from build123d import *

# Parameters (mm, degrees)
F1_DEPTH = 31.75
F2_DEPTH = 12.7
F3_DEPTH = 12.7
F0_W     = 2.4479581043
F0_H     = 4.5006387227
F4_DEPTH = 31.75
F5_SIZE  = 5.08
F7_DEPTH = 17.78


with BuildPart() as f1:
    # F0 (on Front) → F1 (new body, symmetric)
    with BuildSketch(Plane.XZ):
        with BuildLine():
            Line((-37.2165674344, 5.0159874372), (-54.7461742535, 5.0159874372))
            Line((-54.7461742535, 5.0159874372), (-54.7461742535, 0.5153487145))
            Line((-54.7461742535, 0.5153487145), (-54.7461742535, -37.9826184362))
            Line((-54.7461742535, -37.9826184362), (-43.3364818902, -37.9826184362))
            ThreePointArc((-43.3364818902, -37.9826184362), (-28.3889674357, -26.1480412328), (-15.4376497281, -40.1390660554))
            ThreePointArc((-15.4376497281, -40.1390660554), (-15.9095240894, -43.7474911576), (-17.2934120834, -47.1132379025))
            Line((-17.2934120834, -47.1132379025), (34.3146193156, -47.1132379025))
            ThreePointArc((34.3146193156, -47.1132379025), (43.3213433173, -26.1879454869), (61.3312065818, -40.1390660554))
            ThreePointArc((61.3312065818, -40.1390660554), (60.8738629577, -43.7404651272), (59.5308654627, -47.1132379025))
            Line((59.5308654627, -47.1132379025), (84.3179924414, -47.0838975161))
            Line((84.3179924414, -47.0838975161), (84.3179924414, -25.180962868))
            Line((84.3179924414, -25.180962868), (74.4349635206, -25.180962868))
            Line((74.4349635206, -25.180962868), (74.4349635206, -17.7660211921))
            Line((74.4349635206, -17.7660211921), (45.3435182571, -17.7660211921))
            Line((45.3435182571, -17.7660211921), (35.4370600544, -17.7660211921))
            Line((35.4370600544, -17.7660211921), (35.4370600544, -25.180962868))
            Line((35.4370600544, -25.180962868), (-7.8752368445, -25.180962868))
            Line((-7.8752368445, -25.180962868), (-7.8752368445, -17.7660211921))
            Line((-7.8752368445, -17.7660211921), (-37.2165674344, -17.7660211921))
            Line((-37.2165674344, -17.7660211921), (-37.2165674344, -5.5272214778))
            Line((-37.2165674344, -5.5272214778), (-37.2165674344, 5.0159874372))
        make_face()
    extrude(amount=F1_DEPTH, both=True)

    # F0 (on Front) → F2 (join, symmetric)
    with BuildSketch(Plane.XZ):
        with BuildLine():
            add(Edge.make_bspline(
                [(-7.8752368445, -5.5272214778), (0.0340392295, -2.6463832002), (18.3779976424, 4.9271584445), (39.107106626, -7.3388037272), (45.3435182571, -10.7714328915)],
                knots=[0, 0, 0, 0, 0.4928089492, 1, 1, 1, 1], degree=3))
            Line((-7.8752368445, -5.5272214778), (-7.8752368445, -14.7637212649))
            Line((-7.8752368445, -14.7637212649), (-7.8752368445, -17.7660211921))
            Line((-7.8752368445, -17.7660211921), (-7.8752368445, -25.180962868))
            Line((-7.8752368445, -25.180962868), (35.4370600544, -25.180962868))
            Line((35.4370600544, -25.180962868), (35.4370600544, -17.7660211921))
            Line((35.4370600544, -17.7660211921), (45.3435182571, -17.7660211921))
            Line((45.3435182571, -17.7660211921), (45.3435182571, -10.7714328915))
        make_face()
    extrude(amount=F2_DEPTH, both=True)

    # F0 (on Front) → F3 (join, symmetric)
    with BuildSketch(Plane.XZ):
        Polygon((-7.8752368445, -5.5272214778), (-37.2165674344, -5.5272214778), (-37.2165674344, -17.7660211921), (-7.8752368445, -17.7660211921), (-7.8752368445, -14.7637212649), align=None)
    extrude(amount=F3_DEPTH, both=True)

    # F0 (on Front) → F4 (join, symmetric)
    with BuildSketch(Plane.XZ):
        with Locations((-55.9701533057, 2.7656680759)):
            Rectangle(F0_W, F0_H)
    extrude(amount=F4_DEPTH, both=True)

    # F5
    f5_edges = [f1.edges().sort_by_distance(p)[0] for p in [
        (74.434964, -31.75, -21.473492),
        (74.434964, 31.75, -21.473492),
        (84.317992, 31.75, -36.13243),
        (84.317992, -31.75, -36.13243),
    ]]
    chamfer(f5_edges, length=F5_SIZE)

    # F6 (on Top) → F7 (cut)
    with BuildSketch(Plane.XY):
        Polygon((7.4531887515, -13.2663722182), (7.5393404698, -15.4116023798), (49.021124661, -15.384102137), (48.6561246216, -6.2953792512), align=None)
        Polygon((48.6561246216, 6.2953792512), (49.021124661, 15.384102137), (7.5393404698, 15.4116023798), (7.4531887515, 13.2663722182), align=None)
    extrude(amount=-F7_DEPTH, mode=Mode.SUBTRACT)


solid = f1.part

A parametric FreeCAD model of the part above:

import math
import FreeCAD as App
import Part
import Sketcher
Q = App.Units.Quantity


def edges_at(feature, points):
    """Names of the edges that pass closest to the given points."""
    edges = feature.Shape.Edges
    near = lambda p: min(range(len(edges)), key=lambda i: edges[i].distToShape(Part.Vertex(*p))[0])
    return sorted({f"Edge{near(p) + 1}" for p in points})


def add_polygon(sketch, points):
    """Adds a closed chain of lines whose ends are joined by coincident constraints."""
    first, n = sketch.GeometryCount, len(points)
    for a, b in zip(points, points[1:] + points[:1]):
        sketch.addGeometry(Part.LineSegment(App.Vector(*a, 0), App.Vector(*b, 0)), False)
    for i in range(n):
        sketch.addConstraint(Sketcher.Constraint("Coincident", first + i, 2, first + (i + 1) % n, 1))

doc = App.newDocument("Part")
params = doc.addObject("Spreadsheet::Sheet", "Params")
for row, (alias, value) in enumerate([
    ("pad1_length", "2.5 in"),
    ("pad2_length", "1 in"),
    ("pad3_length", "1 in"),
    ("pad4_length", "2.5 in"),
    ("chamfer_size", "0.2 in"),
    ("pocket1_length", "0.7 in"),
], start=1):
    params.set(f"A{row}", alias)
    params.set(f"B{row}", "=" + value)
    params.setAlias(f"B{row}", alias)

body = doc.addObject("PartDesign::Body", "Body")

sketch1 = body.newObject("Sketcher::SketchObject", "Sketch")
sketch1.AttachmentSupport = (doc.getObject("XZ_Plane"), [""])
sketch1.MapMode = "FlatFace"
sketch1.addGeometry(Part.LineSegment(App.Vector(-37, 5, 0), App.Vector(-55, 5, 0)), False)
sketch1.addGeometry(Part.LineSegment(App.Vector(-55, 5, 0), App.Vector(-55, -38, 0)), False)
sketch1.addGeometry(Part.LineSegment(App.Vector(-55, -38, 0), App.Vector(-43, -38, 0)), False)
sketch1.addGeometry(Part.ArcOfCircle(Part.Circle(App.Vector(-29, -40, 0), App.Vector(0, 0, 1), 14), math.radians(0), math.radians(171)), False)
sketch1.addGeometry(Part.ArcOfCircle(Part.Circle(App.Vector(-29, -40, 0), App.Vector(0, 0, 1), 14), math.radians(-30), math.radians(0)), False)
sketch1.addGeometry(Part.LineSegment(App.Vector(-17, -47, 0), App.Vector(34, -47, 0)), False)
sketch1.addGeometry(Part.ArcOfCircle(Part.Circle(App.Vector(47, -40, 0), App.Vector(0, 0, 1), 14), math.radians(0), math.radians(209)), False)
sketch1.addGeometry(Part.ArcOfCircle(Part.Circle(App.Vector(47, -40, 0), App.Vector(0, 0, 1), 14), math.radians(-29), math.radians(0)), False)
sketch1.addGeometry(Part.LineSegment(App.Vector(60, -47, 0), App.Vector(84, -47, 0)), False)
sketch1.addGeometry(Part.LineSegment(App.Vector(84, -47, 0), App.Vector(84, -25, 0)), False)
sketch1.addGeometry(Part.LineSegment(App.Vector(84, -25, 0), App.Vector(74, -25, 0)), False)
sketch1.addGeometry(Part.LineSegment(App.Vector(74, -25, 0), App.Vector(74, -18, 0)), False)
sketch1.addGeometry(Part.LineSegment(App.Vector(74, -18, 0), App.Vector(35, -18, 0)), False)
sketch1.addGeometry(Part.LineSegment(App.Vector(35, -18, 0), App.Vector(35, -25, 0)), False)
sketch1.addGeometry(Part.LineSegment(App.Vector(35, -25, 0), App.Vector(-8, -25, 0)), False)
sketch1.addGeometry(Part.LineSegment(App.Vector(-8, -25, 0), App.Vector(-8, -18, 0)), False)
sketch1.addGeometry(Part.LineSegment(App.Vector(-8, -18, 0), App.Vector(-37, -18, 0)), False)
sketch1.addGeometry(Part.LineSegment(App.Vector(-37, -18, 0), App.Vector(-37, 5, 0)), False)
sketch1.addConstraint(Sketcher.Constraint("Coincident", 0, 2, 1, 1))
sketch1.addConstraint(Sketcher.Constraint("Coincident", 1, 2, 2, 1))
sketch1.addConstraint(Sketcher.Constraint("Coincident", 2, 2, 3, 2))
sketch1.addConstraint(Sketcher.Constraint("Tangent", 3, 1, 4, 2))
sketch1.addConstraint(Sketcher.Constraint("Coincident", 4, 1, 5, 1))
sketch1.addConstraint(Sketcher.Constraint("Coincident", 5, 2, 6, 2))
sketch1.addConstraint(Sketcher.Constraint("Tangent", 6, 1, 7, 2))
sketch1.addConstraint(Sketcher.Constraint("Coincident", 7, 1, 8, 1))
sketch1.addConstraint(Sketcher.Constraint("Coincident", 8, 2, 9, 1))
sketch1.addConstraint(Sketcher.Constraint("Coincident", 9, 2, 10, 1))
sketch1.addConstraint(Sketcher.Constraint("Coincident", 10, 2, 11, 1))
sketch1.addConstraint(Sketcher.Constraint("Coincident", 11, 2, 12, 1))
sketch1.addConstraint(Sketcher.Constraint("Coincident", 12, 2, 13, 1))
sketch1.addConstraint(Sketcher.Constraint("Coincident", 13, 2, 14, 1))
sketch1.addConstraint(Sketcher.Constraint("Coincident", 14, 2, 15, 1))
sketch1.addConstraint(Sketcher.Constraint("Coincident", 15, 2, 16, 1))
sketch1.addConstraint(Sketcher.Constraint("Coincident", 16, 2, 17, 1))
sketch1.addConstraint(Sketcher.Constraint("Coincident", 17, 2, 0, 1))
sketch1.addConstraint(Sketcher.Constraint("Horizontal", 0))
sketch1.addConstraint(Sketcher.Constraint("Vertical", 1))
sketch1.addConstraint(Sketcher.Constraint("Horizontal", 2))
sketch1.addConstraint(Sketcher.Constraint("Horizontal", 5))
sketch1.addConstraint(Sketcher.Constraint("Vertical", 9))
sketch1.addConstraint(Sketcher.Constraint("Horizontal", 10))
sketch1.addConstraint(Sketcher.Constraint("Vertical", 11))
sketch1.addConstraint(Sketcher.Constraint("Horizontal", 12))
sketch1.addConstraint(Sketcher.Constraint("Vertical", 13))
sketch1.addConstraint(Sketcher.Constraint("Horizontal", 14))
sketch1.addConstraint(Sketcher.Constraint("Vertical", 15))
sketch1.addConstraint(Sketcher.Constraint("Horizontal", 16))
sketch1.addConstraint(Sketcher.Constraint("Vertical", 17))
sketch1.addConstraint(Sketcher.Constraint("Equal", 3, 4))
sketch1.addConstraint(Sketcher.Constraint("Equal", 6, 7))
sketch1.addConstraint(Sketcher.Constraint("Horizontal", 4, 3, 6, 3))
sketch1.addConstraint(Sketcher.Constraint("Horizontal", 7, 3, 3, 1))
sketch1.addConstraint(Sketcher.Constraint("Horizontal", 3, 1, 6, 1))
sketch1.addConstraint(Sketcher.Constraint("Horizontal", 5, 2, 7, 1))
sketch1.addConstraint(Sketcher.Constraint("Horizontal", 10, 2, 13, 2))
sketch1.addConstraint(Sketcher.Constraint("Horizontal", 12, 2, 15, 2))
sketch1.addConstraint(Sketcher.Constraint("Radius", 3, Q("14.032758 mm")))
sketch1.addConstraint(Sketcher.Constraint("Radius", 6, Q("14.408464 mm")))
sketch1.addConstraint(Sketcher.Constraint("DistanceX", 5, 1, 5, 2, Q("51.608031 mm")))
sketch1.addConstraint(Sketcher.Constraint("DistanceX", 10, 2, 10, 1, Q("9.883029 mm")))
sketch1.addConstraint(Sketcher.Constraint("DistanceX", 16, 2, 16, 1, Q("29.341331 mm")))
sketch1.addConstraint(Sketcher.Constraint("DistanceY", 11, 1, 11, 2, Q("7.414942 mm")))
sketch1.addConstraint(Sketcher.Constraint("DistanceY", 17, 1, 17, 2, Q("22.782009 mm")))
sketch1.addConstraint(Sketcher.Constraint("DistanceX", 7, 1, 10, 2, Q("14.904098 mm")))
sketch1.addConstraint(Sketcher.Constraint("DistanceX", 0, 2, 0, 1, Q("17.529607 mm")))
sketch1.addConstraint(Sketcher.Constraint("DistanceX", 2, 1, 2, 2, Q("11.409692 mm")))
sketch1.addConstraint(Sketcher.Constraint("DistanceX", 12, 2, 12, 1, Q("38.997903 mm")))
sketch1.addConstraint(Sketcher.Constraint("DistanceX", 14, 2, 14, 1, Q("43.312297 mm")))
sketch1.addConstraint(Sketcher.Constraint("DistanceY", 1, 2, 1, 1, Q("42.998606 mm")))
sketch1.addConstraint(Sketcher.Constraint("DistanceY", 9, 1, 9, 2, Q("21.902935 mm")))
sketch1.addConstraint(Sketcher.Constraint("DistanceY", 1, 2, -1, 1, Q("37.982618 mm")))
sketch1.addConstraint(Sketcher.Constraint("DistanceX", 2, 2, -1, 1, Q("43.336482 mm")))
sketch1.addConstraint(Sketcher.Constraint("DistanceX", 3, 1, -1, 1, Q("15.43765 mm")))
pad1 = body.newObject("PartDesign::Pad", "Pad")
pad1.Profile = sketch1
pad1.setExpression("Length", "Params.pad1_length")
pad1.Midplane = True

sketch2 = body.newObject("Sketcher::SketchObject", "Sketch001")
sketch2.AttachmentSupport = (doc.getObject("XZ_Plane"), [""])
sketch2.MapMode = "FlatFace"
sketch2.addGeometry(Part.BSplineCurve([App.Vector(-7.875237, -5.527221, 0), App.Vector(0.034039, -2.646383, 0), App.Vector(18.377998, 4.927158, 0), App.Vector(39.107107, -7.338804, 0), App.Vector(45.343518, -10.771433, 0)], [4, 1, 4], [0, 0.492808949, 1], False, 3, [1, 1, 1, 1, 1], False), False)
sketch2.addGeometry(Part.LineSegment(App.Vector(-7.875237, -5.527221, 0), App.Vector(-7.875237, -25.180963, 0)), False)
sketch2.addGeometry(Part.LineSegment(App.Vector(-7.875237, -25.180963, 0), App.Vector(35.43706, -25.180963, 0)), False)
sketch2.addGeometry(Part.LineSegment(App.Vector(35.43706, -25.180963, 0), App.Vector(35.43706, -17.766021, 0)), False)
sketch2.addGeometry(Part.LineSegment(App.Vector(35.43706, -17.766021, 0), App.Vector(45.343518, -17.766021, 0)), False)
sketch2.addGeometry(Part.LineSegment(App.Vector(45.343518, -17.766021, 0), App.Vector(45.343518, -10.771433, 0)), False)
sketch2.addConstraint(Sketcher.Constraint("Block", 0))
sketch2.addConstraint(Sketcher.Constraint("Coincident", 0, 1, 1, 1))
sketch2.addConstraint(Sketcher.Constraint("Coincident", 1, 2, 2, 1))
sketch2.addConstraint(Sketcher.Constraint("Coincident", 2, 2, 3, 1))
sketch2.addConstraint(Sketcher.Constraint("Coincident", 3, 2, 4, 1))
sketch2.addConstraint(Sketcher.Constraint("Coincident", 4, 2, 5, 1))
sketch2.addConstraint(Sketcher.Constraint("Coincident", 5, 2, 0, 2))
sketch2.addConstraint(Sketcher.Constraint("Vertical", 1))
sketch2.addConstraint(Sketcher.Constraint("Horizontal", 2))
sketch2.addConstraint(Sketcher.Constraint("Vertical", 3))
sketch2.addConstraint(Sketcher.Constraint("Horizontal", 4))
sketch2.addConstraint(Sketcher.Constraint("Vertical", 5))
sketch2.addConstraint(Sketcher.Constraint("DistanceX", 4, 1, 4, 2, Q("9.906458 mm")))
sketch2.addConstraint(Sketcher.Constraint("DistanceY", 1, 2, 1, 1, Q("19.653741 mm")))
sketch2.addConstraint(Sketcher.Constraint("DistanceY", 3, 1, 3, 2, Q("7.414942 mm")))
pad2 = body.newObject("PartDesign::Pad", "Pad001")
pad2.Profile = sketch2
pad2.setExpression("Length", "Params.pad2_length")
pad2.Midplane = True

sketch3 = body.newObject("Sketcher::SketchObject", "Sketch002")
sketch3.AttachmentSupport = (doc.getObject("XZ_Plane"), [""])
sketch3.MapMode = "FlatFace"
add_polygon(sketch3, [(-8, -6), (-37, -6), (-37, -18), (-8, -18)])
sketch3.addConstraint(Sketcher.Constraint("Horizontal", 0))
sketch3.addConstraint(Sketcher.Constraint("Vertical", 1))
sketch3.addConstraint(Sketcher.Constraint("Horizontal", 2))
sketch3.addConstraint(Sketcher.Constraint("Vertical", 3))
sketch3.addConstraint(Sketcher.Constraint("DistanceY", 1, 2, 1, 1, Q("12.2388 mm")))
sketch3.addConstraint(Sketcher.Constraint("DistanceX", 0, 2, 0, 1, Q("29.341331 mm")))
sketch3.addConstraint(Sketcher.Constraint("DistanceY", 0, 2, -1, 1, Q("5.527221 mm")))
sketch3.addConstraint(Sketcher.Constraint("DistanceX", 0, 2, -1, 1, Q("37.216567 mm")))
pad3 = body.newObject("PartDesign::Pad", "Pad002")
pad3.Profile = sketch3
pad3.setExpression("Length", "Params.pad3_length")
pad3.Midplane = True

sketch4 = body.newObject("Sketcher::SketchObject", "Sketch003")
sketch4.AttachmentSupport = (doc.getObject("XZ_Plane"), [""])
sketch4.MapMode = "FlatFace"
add_polygon(sketch4, [(-57.2, 5), (-57.2, 0.5), (-54.7, 0.5), (-54.7, 5)])
sketch4.addConstraint(Sketcher.Constraint("Vertical", 0))
sketch4.addConstraint(Sketcher.Constraint("Horizontal", 1))
sketch4.addConstraint(Sketcher.Constraint("Vertical", 2))
sketch4.addConstraint(Sketcher.Constraint("Horizontal", 3))
sketch4.addConstraint(Sketcher.Constraint("DistanceX", 1, 1, 1, 2, Q("2.447958 mm")))
sketch4.addConstraint(Sketcher.Constraint("DistanceY", 0, 2, 0, 1, Q("4.500639 mm")))
sketch4.addConstraint(Sketcher.Constraint("DistanceY", -1, 1, 0, 2, Q("0.515349 mm")))
sketch4.addConstraint(Sketcher.Constraint("DistanceX", 0, 2, -1, 1, Q("57.194132 mm")))
pad4 = body.newObject("PartDesign::Pad", "Pad003")
pad4.Profile = sketch4
pad4.setExpression("Length", "Params.pad4_length")
pad4.Midplane = True
doc.recompute()

chamfer = body.newObject("PartDesign::Chamfer", "Chamfer")
chamfer.Base = (pad4, edges_at(pad4, [
    (74.435, -31.75, -21.473),
    (74.435, 31.75, -21.473),
    (84.318, 31.75, -36.132),
    (84.318, -31.75, -36.132),
]))
chamfer.setExpression("Size", "Params.chamfer_size")

sketch5 = body.newObject("Sketcher::SketchObject", "Sketch004")
sketch5.AttachmentSupport = (doc.getObject("XY_Plane"), [""])
sketch5.MapMode = "FlatFace"
add_polygon(sketch5, [(7.5, -13.3), (7.5, -15.4), (49, -15.4), (48.7, -6.3)])
add_polygon(sketch5, [(48.7, 6.3), (49, 15.4), (7.5, 15.4), (7.5, 13.3)])
sketch5.addConstraint(Sketcher.Constraint("Symmetric", 1, 2, 4, 2, -1))
sketch5.addConstraint(Sketcher.Constraint("Symmetric", 0, 2, 5, 2, -1))
sketch5.addConstraint(Sketcher.Constraint("Symmetric", 3, 2, 6, 2, -1))
sketch5.addConstraint(Sketcher.Constraint("Symmetric", 2, 2, 7, 2, -1))
sketch5.addConstraint(Sketcher.Constraint("Parallel", 0, 2))
sketch5.addConstraint(Sketcher.Constraint("DistanceY", 0, 2, 1, 2, Q("0.0275 mm")))
sketch5.addConstraint(Sketcher.Constraint("DistanceX", 2, 2, 1, 2, Q("0.365 mm")))
sketch5.addConstraint(Sketcher.Constraint("Distance", 0, Q("2.146959 mm")))
sketch5.addConstraint(Sketcher.Constraint("Distance", 2, Q("9.096049 mm")))
sketch5.addConstraint(Sketcher.Constraint("DistanceX", -1, 1, 0, 2, Q("7.53934 mm")))
sketch5.addConstraint(Sketcher.Constraint("DistanceY", 2, 2, -1, 1, Q("6.295379 mm")))
sketch5.addConstraint(Sketcher.Constraint("Distance", 1, Q("41.481793 mm")))
pocket1 = body.newObject("PartDesign::Pocket", "Pocket")
pocket1.Profile = sketch5
pocket1.setExpression("Length", "Params.pocket1_length")

doc.recompute()
